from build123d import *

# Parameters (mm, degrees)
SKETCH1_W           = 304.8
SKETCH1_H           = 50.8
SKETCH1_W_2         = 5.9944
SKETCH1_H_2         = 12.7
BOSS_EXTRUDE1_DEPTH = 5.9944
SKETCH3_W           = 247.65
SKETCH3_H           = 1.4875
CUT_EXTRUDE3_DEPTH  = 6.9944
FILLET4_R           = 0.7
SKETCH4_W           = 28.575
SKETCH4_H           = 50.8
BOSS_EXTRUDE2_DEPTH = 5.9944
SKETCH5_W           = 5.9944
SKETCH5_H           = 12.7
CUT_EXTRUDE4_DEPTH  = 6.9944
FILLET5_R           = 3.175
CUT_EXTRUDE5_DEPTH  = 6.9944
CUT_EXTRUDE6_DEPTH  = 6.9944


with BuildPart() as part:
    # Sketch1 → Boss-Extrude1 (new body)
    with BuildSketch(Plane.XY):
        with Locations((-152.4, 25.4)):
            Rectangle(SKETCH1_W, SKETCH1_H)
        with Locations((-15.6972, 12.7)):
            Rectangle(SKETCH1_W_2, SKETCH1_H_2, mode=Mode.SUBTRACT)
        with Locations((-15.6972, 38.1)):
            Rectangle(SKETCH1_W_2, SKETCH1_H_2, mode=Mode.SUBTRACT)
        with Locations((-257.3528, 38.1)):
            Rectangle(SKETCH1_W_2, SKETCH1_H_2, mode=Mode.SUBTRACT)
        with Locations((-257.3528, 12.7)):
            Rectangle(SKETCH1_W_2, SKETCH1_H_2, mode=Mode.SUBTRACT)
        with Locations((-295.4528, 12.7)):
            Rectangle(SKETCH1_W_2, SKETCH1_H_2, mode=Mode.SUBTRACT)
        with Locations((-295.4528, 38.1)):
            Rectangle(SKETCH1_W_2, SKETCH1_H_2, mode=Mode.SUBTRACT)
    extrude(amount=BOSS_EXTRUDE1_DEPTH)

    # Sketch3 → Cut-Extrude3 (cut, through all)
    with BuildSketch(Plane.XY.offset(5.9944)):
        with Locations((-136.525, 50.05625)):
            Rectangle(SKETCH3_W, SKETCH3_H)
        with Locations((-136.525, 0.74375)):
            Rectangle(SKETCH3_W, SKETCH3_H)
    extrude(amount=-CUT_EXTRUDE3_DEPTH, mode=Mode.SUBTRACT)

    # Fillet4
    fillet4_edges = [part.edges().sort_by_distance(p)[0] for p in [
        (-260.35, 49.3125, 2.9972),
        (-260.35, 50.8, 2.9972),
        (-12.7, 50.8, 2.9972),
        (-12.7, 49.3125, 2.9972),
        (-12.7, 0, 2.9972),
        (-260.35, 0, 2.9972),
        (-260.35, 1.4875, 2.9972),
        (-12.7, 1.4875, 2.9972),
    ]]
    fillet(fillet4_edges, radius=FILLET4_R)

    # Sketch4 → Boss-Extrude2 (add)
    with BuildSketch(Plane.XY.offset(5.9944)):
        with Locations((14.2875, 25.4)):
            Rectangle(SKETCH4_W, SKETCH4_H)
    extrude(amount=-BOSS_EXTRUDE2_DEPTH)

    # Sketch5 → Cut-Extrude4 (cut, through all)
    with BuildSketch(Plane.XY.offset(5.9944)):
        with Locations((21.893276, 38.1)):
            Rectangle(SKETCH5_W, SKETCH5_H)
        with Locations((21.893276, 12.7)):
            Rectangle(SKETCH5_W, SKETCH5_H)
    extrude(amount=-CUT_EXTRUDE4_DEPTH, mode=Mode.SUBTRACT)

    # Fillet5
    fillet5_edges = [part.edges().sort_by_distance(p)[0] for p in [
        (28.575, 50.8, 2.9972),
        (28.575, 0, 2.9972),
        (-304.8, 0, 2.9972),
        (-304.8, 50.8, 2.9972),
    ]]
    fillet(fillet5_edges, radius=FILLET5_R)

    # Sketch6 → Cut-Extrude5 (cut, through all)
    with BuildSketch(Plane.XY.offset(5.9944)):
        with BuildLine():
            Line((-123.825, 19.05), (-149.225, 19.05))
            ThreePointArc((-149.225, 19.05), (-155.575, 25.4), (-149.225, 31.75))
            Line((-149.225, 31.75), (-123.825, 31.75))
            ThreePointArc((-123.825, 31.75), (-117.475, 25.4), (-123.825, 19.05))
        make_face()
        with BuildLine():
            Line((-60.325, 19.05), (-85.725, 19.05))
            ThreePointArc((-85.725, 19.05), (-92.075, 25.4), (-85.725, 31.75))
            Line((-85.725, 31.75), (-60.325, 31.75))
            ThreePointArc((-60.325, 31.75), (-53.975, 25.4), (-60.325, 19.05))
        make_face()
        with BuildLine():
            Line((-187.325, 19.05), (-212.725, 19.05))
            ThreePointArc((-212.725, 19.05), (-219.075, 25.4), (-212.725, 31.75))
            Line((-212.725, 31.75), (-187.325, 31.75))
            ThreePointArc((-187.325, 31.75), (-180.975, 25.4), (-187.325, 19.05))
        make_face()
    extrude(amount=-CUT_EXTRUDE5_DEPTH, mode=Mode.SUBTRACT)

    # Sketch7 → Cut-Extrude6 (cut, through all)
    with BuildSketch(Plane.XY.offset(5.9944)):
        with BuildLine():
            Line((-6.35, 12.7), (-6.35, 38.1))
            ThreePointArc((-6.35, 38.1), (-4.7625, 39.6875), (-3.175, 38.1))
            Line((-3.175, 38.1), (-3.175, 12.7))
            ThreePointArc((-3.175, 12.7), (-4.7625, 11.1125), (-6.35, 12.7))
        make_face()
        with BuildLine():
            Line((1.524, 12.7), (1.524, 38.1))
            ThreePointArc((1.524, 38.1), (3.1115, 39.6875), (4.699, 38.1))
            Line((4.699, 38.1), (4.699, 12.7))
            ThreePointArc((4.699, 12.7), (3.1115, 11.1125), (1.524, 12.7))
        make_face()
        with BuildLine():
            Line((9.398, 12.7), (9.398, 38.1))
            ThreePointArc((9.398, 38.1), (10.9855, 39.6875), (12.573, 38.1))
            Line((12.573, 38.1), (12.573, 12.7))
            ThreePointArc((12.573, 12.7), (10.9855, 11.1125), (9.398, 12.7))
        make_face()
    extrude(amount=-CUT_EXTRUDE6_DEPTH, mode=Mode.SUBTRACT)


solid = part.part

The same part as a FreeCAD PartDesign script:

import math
import FreeCAD as App
import Part
import Sketcher
from FreeCAD import Vector
Q = App.Units.Quantity


def edges_at(feature, points):
    """Names of the edges that pass closest to the given points."""
    edges = feature.Shape.Edges
    near = lambda p: min(range(len(edges)), key=lambda i: edges[i].distToShape(Part.Vertex(*p))[0])
    return sorted({f"Edge{near(p) + 1}" for p in points})

doc = App.newDocument("Part")
body = doc.addObject("PartDesign::Body", "Body")

sketch1 = doc.addObject("Sketcher::SketchObject", "Sketch")
body.addObject(sketch1)
sketch1.AttachmentSupport = (doc.XY_Plane, [""])
sketch1.MapMode = "FlatFace"
sketch1.addGeometry(Part.LineSegment(Vector(-305, 51, 0), Vector(-305, 0, 0)), False)
sketch1.addGeometry(Part.LineSegment(Vector(-305, 0, 0), Vector(0, 0, 0)), False)
sketch1.addGeometry(Part.LineSegment(Vector(0, 0, 0), Vector(0, 51, 0)), False)
sketch1.addGeometry(Part.LineSegment(Vector(0, 51, 0), Vector(-305, 51, 0)), False)
sketch1.addGeometry(Part.LineSegment(Vector(-292, 6, 0), Vector(-298, 6, 0)), False)
sketch1.addGeometry(Part.LineSegment(Vector(-298, 6, 0), Vector(-298, 19, 0)), False)
sketch1.addGeometry(Part.LineSegment(Vector(-298, 19, 0), Vector(-292, 19, 0)), False)
sketch1.addGeometry(Part.LineSegment(Vector(-292, 19, 0), Vector(-292, 6, 0)), False)
sketch1.addGeometry(Part.LineSegment(Vector(-254, 6, 0), Vector(-260, 6, 0)), False)
sketch1.addGeometry(Part.LineSegment(Vector(-260, 6, 0), Vector(-260, 19, 0)), False)
sketch1.addGeometry(Part.LineSegment(Vector(-260, 19, 0), Vector(-254, 19, 0)), False)
sketch1.addGeometry(Part.LineSegment(Vector(-254, 19, 0), Vector(-254, 6, 0)), False)
sketch1.addGeometry(Part.LineSegment(Vector(-13, 6, 0), Vector(-19, 6, 0)), False)
sketch1.addGeometry(Part.LineSegment(Vector(-19, 6, 0), Vector(-19, 19, 0)), False)
sketch1.addGeometry(Part.LineSegment(Vector(-19, 19, 0), Vector(-13, 19, 0)), False)
sketch1.addGeometry(Part.LineSegment(Vector(-13, 19, 0), Vector(-13, 6, 0)), False)
sketch1.addGeometry(Part.LineSegment(Vector(-292, 32, 0), Vector(-298, 32, 0)), False)
sketch1.addGeometry(Part.LineSegment(Vector(-298, 32, 0), Vector(-298, 44, 0)), False)
sketch1.addGeometry(Part.LineSegment(Vector(-298, 44, 0), Vector(-292, 44, 0)), False)
sketch1.addGeometry(Part.LineSegment(Vector(-292, 44, 0), Vector(-292, 32, 0)), False)
sketch1.addGeometry(Part.LineSegment(Vector(-254, 32, 0), Vector(-260, 32, 0)), False)
sketch1.addGeometry(Part.LineSegment(Vector(-260, 32, 0), Vector(-260, 44, 0)), False)
sketch1.addGeometry(Part.LineSegment(Vector(-260, 44, 0), Vector(-254, 44, 0)), False)
sketch1.addGeometry(Part.LineSegment(Vector(-254, 44, 0), Vector(-254, 32, 0)), False)
sketch1.addGeometry(Part.LineSegment(Vector(-13, 32, 0), Vector(-19, 32, 0)), False)
sketch1.addGeometry(Part.LineSegment(Vector(-19, 32, 0), Vector(-19, 44, 0)), False)
sketch1.addGeometry(Part.LineSegment(Vector(-19, 44, 0), Vector(-13, 44, 0)), False)
sketch1.addGeometry(Part.LineSegment(Vector(-13, 44, 0), Vector(-13, 32, 0)), False)
sketch1.addConstraint(Sketcher.Constraint("Coincident", 0, 2, 1, 1))
sketch1.addConstraint(Sketcher.Constraint("Coincident", 1, 2, 2, 1))
sketch1.addConstraint(Sketcher.Constraint("Coincident", 2, 2, 3, 1))
sketch1.addConstraint(Sketcher.Constraint("Coincident", 3, 2, 0, 1))
sketch1.addConstraint(Sketcher.Constraint("Coincident", 4, 2, 5, 1))
sketch1.addConstraint(Sketcher.Constraint("Coincident", 5, 2, 6, 1))
sketch1.addConstraint(Sketcher.Constraint("Coincident", 6, 2, 7, 1))
sketch1.addConstraint(Sketcher.Constraint("Coincident", 7, 2, 4, 1))
sketch1.addConstraint(Sketcher.Constraint("Coincident", 8, 2, 9, 1))
sketch1.addConstraint(Sketcher.Constraint("Coincident", 9, 2, 10, 1))
sketch1.addConstraint(Sketcher.Constraint("Coincident", 10, 2, 11, 1))
sketch1.addConstraint(Sketcher.Constraint("Coincident", 11, 2, 8, 1))
sketch1.addConstraint(Sketcher.Constraint("Coincident", 12, 2, 13, 1))
sketch1.addConstraint(Sketcher.Constraint("Coincident", 13, 2, 14, 1))
sketch1.addConstraint(Sketcher.Constraint("Coincident", 14, 2, 15, 1))
sketch1.addConstraint(Sketcher.Constraint("Coincident", 15, 2, 12, 1))
sketch1.addConstraint(Sketcher.Constraint("Coincident", 16, 2, 17, 1))
sketch1.addConstraint(Sketcher.Constraint("Coincident", 17, 2, 18, 1))
sketch1.addConstraint(Sketcher.Constraint("Coincident", 18, 2, 19, 1))
sketch1.addConstraint(Sketcher.Constraint("Coincident", 19, 2, 16, 1))
sketch1.addConstraint(Sketcher.Constraint("Coincident", 20, 2, 21, 1))
sketch1.addConstraint(Sketcher.Constraint("Coincident", 21, 2, 22, 1))
sketch1.addConstraint(Sketcher.Constraint("Coincident", 22, 2, 23, 1))
sketch1.addConstraint(Sketcher.Constraint("Coincident", 23, 2, 20, 1))
sketch1.addConstraint(Sketcher.Constraint("Coincident", 24, 2, 25, 1))
sketch1.addConstraint(Sketcher.Constraint("Coincident", 25, 2, 26, 1))
sketch1.addConstraint(Sketcher.Constraint("Coincident", 26, 2, 27, 1))
sketch1.addConstraint(Sketcher.Constraint("Coincident", 27, 2, 24, 1))
sketch1.addConstraint(Sketcher.Constraint("Vertical", 0))
sketch1.addConstraint(Sketcher.Constraint("Horizontal", 1))
sketch1.addConstraint(Sketcher.Constraint("Vertical", 2))
sketch1.addConstraint(Sketcher.Constraint("Horizontal", 3))
sketch1.addConstraint(Sketcher.Constraint("Horizontal", 4))
sketch1.addConstraint(Sketcher.Constraint("Vertical", 5))
sketch1.addConstraint(Sketcher.Constraint("Horizontal", 6))
sketch1.addConstraint(Sketcher.Constraint("Vertical", 7))
sketch1.addConstraint(Sketcher.Constraint("Horizontal", 8))
sketch1.addConstraint(Sketcher.Constraint("Vertical", 9))
sketch1.addConstraint(Sketcher.Constraint("Horizontal", 10))
sketch1.addConstraint(Sketcher.Constraint("Vertical", 11))
sketch1.addConstraint(Sketcher.Constraint("Horizontal", 12))
sketch1.addConstraint(Sketcher.Constraint("Vertical", 13))
sketch1.addConstraint(Sketcher.Constraint("Horizontal", 14))
sketch1.addConstraint(Sketcher.Constraint("Vertical", 15))
sketch1.addConstraint(Sketcher.Constraint("Horizontal", 16))
sketch1.addConstraint(Sketcher.Constraint("Vertical", 17))
sketch1.addConstraint(Sketcher.Constraint("Horizontal", 18))
sketch1.addConstraint(Sketcher.Constraint("Vertical", 19))
sketch1.addConstraint(Sketcher.Constraint("Horizontal", 20))
sketch1.addConstraint(Sketcher.Constraint("Vertical", 21))
sketch1.addConstraint(Sketcher.Constraint("Horizontal", 22))
sketch1.addConstraint(Sketcher.Constraint("Vertical", 23))
sketch1.addConstraint(Sketcher.Constraint("Horizontal", 24))
sketch1.addConstraint(Sketcher.Constraint("Vertical", 25))
sketch1.addConstraint(Sketcher.Constraint("Horizontal", 26))
sketch1.addConstraint(Sketcher.Constraint("Vertical", 27))
sketch1.addConstraint(Sketcher.Constraint("Coincident", 1, 2, -1, 1))
sketch1.addConstraint(Sketcher.Constraint("Horizontal", 7, 2, 8, 2))
sketch1.addConstraint(Sketcher.Constraint("Horizontal", 6, 2, 9, 2))
sketch1.addConstraint(Sketcher.Constraint("Horizontal", 11, 2, 12, 2))
sketch1.addConstraint(Sketcher.Constraint("Horizontal", 10, 2, 13, 2))
sketch1.addConstraint(Sketcher.Constraint("Horizontal", 19, 2, 20, 2))
sketch1.addConstraint(Sketcher.Constraint("Horizontal", 18, 2, 21, 2))
sketch1.addConstraint(Sketcher.Constraint("Horizontal", 23, 2, 24, 2))
sketch1.addConstraint(Sketcher.Constraint("Horizontal", 22, 2, 25, 2))
sketch1.addConstraint(Sketcher.Constraint("Vertical", 5, 2, 16, 2))
sketch1.addConstraint(Sketcher.Constraint("Vertical", 7, 2, 18, 2))
sketch1.addConstraint(Sketcher.Constraint("Vertical", 9, 2, 20, 2))
sketch1.addConstraint(Sketcher.Constraint("Vertical", 11, 2, 22, 2))
sketch1.addConstraint(Sketcher.Constraint("Vertical", 13, 2, 24, 2))
sketch1.addConstraint(Sketcher.Constraint("Vertical", 15, 2, 26, 2))
sketch1.addConstraint(Sketcher.Constraint("Equal", 6, 8))
sketch1.addConstraint(Sketcher.Constraint("Equal", 10, 12))
sketch1.addConstraint(Sketcher.Constraint("Equal", 15, 17))
sketch1.addConstraint(Sketcher.Constraint("DistanceX", 1, 1, 1, 2, Q("12 in")))
sketch1.addConstraint(Sketcher.Constraint("DistanceY", 0, 2, 0, 1, Q("2 in")))
sketch1.addConstraint(Sketcher.Constraint("DistanceY", 5, 1, 5, 2, Q("0.5 in")))
sketch1.addConstraint(Sketcher.Constraint("DistanceY", 4, 2, 16, 2, Q("1 in")))
sketch1.addConstraint(Sketcher.Constraint("DistanceX", 14, 2, -1, 1, Q("0.5 in")))
sketch1.addConstraint(Sketcher.Constraint("DistanceX", 4, 2, 8, 2, Q("1.5 in")))
sketch1.addConstraint(Sketcher.Constraint("DistanceX", 4, 2, 4, 1, Q("0.236 in")))
sketch1.addConstraint(Sketcher.Constraint("DistanceX", 4, 2, -1, 1, Q("11.75 in")))
sketch1.addConstraint(Sketcher.Constraint("DistanceY", -1, 1, 4, 2, Q("0.25 in")))
pad1 = doc.addObject("PartDesign::Pad", "Pad")
body.addObject(pad1)
pad1.Profile = sketch1
pad1.Length = Q("0.236 in")

sketch2 = doc.addObject("Sketcher::SketchObject", "Sketch001")
body.addObject(sketch2)
sketch2.AttachmentSupport = (doc.XY_Plane, [""])
sketch2.MapMode = "FlatFace"
sketch2.AttachmentOffset = App.Placement(Vector(0, 0, 0.236 * 25.4), App.Rotation())
sketch2.addGeometry(Part.LineSegment(Vector(-260.4, 50.8, 0), Vector(-260.4, 49.3, 0)), False)
sketch2.addGeometry(Part.LineSegment(Vector(-260.4, 49.3, 0), Vector(-12.7, 49.3, 0)), False)
sketch2.addGeometry(Part.LineSegment(Vector(-12.7, 49.3, 0), Vector(-12.7, 50.8, 0)), False)
sketch2.addGeometry(Part.LineSegment(Vector(-12.7, 50.8, 0), Vector(-260.4, 50.8, 0)), False)
sketch2.addGeometry(Part.LineSegment(Vector(-260.4, 1.5, 0), Vector(-260.4, 0, 0)), False)
sketch2.addGeometry(Part.LineSegment(Vector(-260.4, 0, 0), Vector(-12.7, 0, 0)), False)
sketch2.addGeometry(Part.LineSegment(Vector(-12.7, 0, 0), Vector(-12.7, 1.5, 0)), False)
sketch2.addGeometry(Part.LineSegment(Vector(-12.7, 1.5, 0), Vector(-260.4, 1.5, 0)), False)
sketch2.addConstraint(Sketcher.Constraint("Coincident", 0, 2, 1, 1))
sketch2.addConstraint(Sketcher.Constraint("Coincident", 1, 2, 2, 1))
sketch2.addConstraint(Sketcher.Constraint("Coincident", 2, 2, 3, 1))
sketch2.addConstraint(Sketcher.Constraint("Coincident", 3, 2, 0, 1))
sketch2.addConstraint(Sketcher.Constraint("Coincident", 4, 2, 5, 1))
sketch2.addConstraint(Sketcher.Constraint("Coincident", 5, 2, 6, 1))
sketch2.addConstraint(Sketcher.Constraint("Coincident", 6, 2, 7, 1))
sketch2.addConstraint(Sketcher.Constraint("Coincident", 7, 2, 4, 1))
sketch2.addConstraint(Sketcher.Constraint("Vertical", 0))
sketch2.addConstraint(Sketcher.Constraint("Horizontal", 1))
sketch2.addConstraint(Sketcher.Constraint("Vertical", 2))
sketch2.addConstraint(Sketcher.Constraint("Horizontal", 3))
sketch2.addConstraint(Sketcher.Constraint("Vertical", 4))
sketch2.addConstraint(Sketcher.Constraint("Horizontal", 5))
sketch2.addConstraint(Sketcher.Constraint("Vertical", 6))
sketch2.addConstraint(Sketcher.Constraint("Horizontal", 7))
sketch2.addConstraint(Sketcher.Constraint("PointOnObject", 4, 2, -1))
sketch2.addConstraint(Sketcher.Constraint("Vertical", 3, 2, 4, 2))
sketch2.addConstraint(Sketcher.Constraint("Vertical", 2, 2, 5, 2))
sketch2.addConstraint(Sketcher.Constraint("Equal", 2, 4))
sketch2.addConstraint(Sketcher.Constraint("DistanceY", -1, 1, 2, 2, Q("2 in")))
sketch2.addConstraint(Sketcher.Constraint("DistanceX", 1, 1, 1, 2, Q("9.75 in")))
sketch2.addConstraint(Sketcher.Constraint("DistanceX", 1, 2, -1, 1, Q("0.5 in")))
sketch2.addConstraint(Sketcher.Constraint("DistanceY", 0, 2, 0, 1, Q("1.4875 mm")))
pocket1 = doc.addObject("PartDesign::Pocket", "Pocket")
body.addObject(pocket1)
pocket1.Profile = sketch2
pocket1.Type = "ThroughAll"
doc.recompute()

fillet = doc.addObject("PartDesign::Fillet", "Fillet")
body.addObject(fillet)
fillet.Base = (pocket1, edges_at(pocket1, [
    (-260.35, 49.312, 2.997),
    (-260.35, 50.8, 2.997),
    (-12.7, 50.8, 2.997),
    (-12.7, 49.312, 2.997),
    (-12.7, 0, 2.997),
    (-260.35, 0, 2.997),
    (-260.35, 1.488, 2.997),
    (-12.7, 1.488, 2.997),
]))
fillet.Radius = 0.7

sketch3 = doc.addObject("Sketcher::SketchObject", "Sketch002")
body.addObject(sketch3)
sketch3.AttachmentSupport = (doc.XY_Plane, [""])
sketch3.MapMode = "FlatFace"
sketch3.AttachmentOffset = App.Placement(Vector(0, 0, 0.236 * 25.4), App.Rotation())
sketch3.addGeometry(Part.LineSegment(Vector(0, 51, 0), Vector(0, 0, 0)), False)
sketch3.addGeometry(Part.LineSegment(Vector(0, 0, 0), Vector(29, 0, 0)), False)
sketch3.addGeometry(Part.LineSegment(Vector(29, 0, 0), Vector(29, 51, 0)), False)
sketch3.addGeometry(Part.LineSegment(Vector(29, 51, 0), Vector(0, 51, 0)), False)
sketch3.addConstraint(Sketcher.Constraint("Coincident", 0, 2, 1, 1))
sketch3.addConstraint(Sketcher.Constraint("Coincident", 1, 2, 2, 1))
sketch3.addConstraint(Sketcher.Constraint("Coincident", 2, 2, 3, 1))
sketch3.addConstraint(Sketcher.Constraint("Coincident", 3, 2, 0, 1))
sketch3.addConstraint(Sketcher.Constraint("Vertical", 0))
sketch3.addConstraint(Sketcher.Constraint("Horizontal", 1))
sketch3.addConstraint(Sketcher.Constraint("Vertical", 2))
sketch3.addConstraint(Sketcher.Constraint("Horizontal", 3))
sketch3.addConstraint(Sketcher.Constraint("Coincident", 0, 2, -1, 1))
sketch3.addConstraint(Sketcher.Constraint("DistanceY", 0, 2, 0, 1, Q("2 in")))
sketch3.addConstraint(Sketcher.Constraint("DistanceX", 1, 1, 1, 2, Q("1.125 in")))
pad2 = doc.addObject("PartDesign::Pad", "Pad001")
body.addObject(pad2)
pad2.Profile = sketch3
pad2.Length = Q("0.236 in")
pad2.Reversed = True

sketch4 = doc.addObject("Sketcher::SketchObject", "Sketch003")
body.addObject(sketch4)
sketch4.AttachmentSupport = (doc.XY_Plane, [""])
sketch4.MapMode = "FlatFace"
sketch4.AttachmentOffset = App.Placement(Vector(0, 0, 0.236 * 25.4), App.Rotation())
sketch4.addGeometry(Part.LineSegment(Vector(19, 44, 0), Vector(19, 32, 0)), False)
sketch4.addGeometry(Part.LineSegment(Vector(19, 32, 0), Vector(25, 32, 0)), False)
sketch4.addGeometry(Part.LineSegment(Vector(25, 32, 0), Vector(25, 44, 0)), False)
sketch4.addGeometry(Part.LineSegment(Vector(25, 44, 0), Vector(19, 44, 0)), False)
sketch4.addGeometry(Part.LineSegment(Vector(19, 19, 0), Vector(19, 6, 0)), False)
sketch4.addGeometry(Part.LineSegment(Vector(19, 6, 0), Vector(25, 6, 0)), False)
sketch4.addGeometry(Part.LineSegment(Vector(25, 6, 0), Vector(25, 19, 0)), False)
sketch4.addGeometry(Part.LineSegment(Vector(25, 19, 0), Vector(19, 19, 0)), False)
sketch4.addConstraint(Sketcher.Constraint("Coincident", 0, 2, 1, 1))
sketch4.addConstraint(Sketcher.Constraint("Coincident", 1, 2, 2, 1))
sketch4.addConstraint(Sketcher.Constraint("Coincident", 2, 2, 3, 1))
sketch4.addConstraint(Sketcher.Constraint("Coincident", 3, 2, 0, 1))
sketch4.addConstraint(Sketcher.Constraint("Coincident", 4, 2, 5, 1))
sketch4.addConstraint(Sketcher.Constraint("Coincident", 5, 2, 6, 1))
sketch4.addConstraint(Sketcher.Constraint("Coincident", 6, 2, 7, 1))
sketch4.addConstraint(Sketcher.Constraint("Coincident", 7, 2, 4, 1))
sketch4.addConstraint(Sketcher.Constraint("Vertical", 0))
sketch4.addConstraint(Sketcher.Constraint("Horizontal", 1))
sketch4.addConstraint(Sketcher.Constraint("Vertical", 2))
sketch4.addConstraint(Sketcher.Constraint("Horizontal", 3))
sketch4.addConstraint(Sketcher.Constraint("Vertical", 4))
sketch4.addConstraint(Sketcher.Constraint("Horizontal", 5))
sketch4.addConstraint(Sketcher.Constraint("Vertical", 6))
sketch4.addConstraint(Sketcher.Constraint("Horizontal", 7))
sketch4.addConstraint(Sketcher.Constraint("Vertical", 3, 2, 4, 2))
sketch4.addConstraint(Sketcher.Constraint("Vertical", 2, 2, 5, 2))
sketch4.addConstraint(Sketcher.Constraint("Equal", 2, 4))
sketch4.addConstraint(Sketcher.Constraint("DistanceY", 0, 2, 0, 1, Q("0.5 in")))
sketch4.addConstraint(Sketcher.Constraint("DistanceY", 4, 2, 0, 2, Q("1 in")))
sketch4.addConstraint(Sketcher.Constraint("DistanceX", 1, 1, 1, 2, Q("0.236 in")))
sketch4.addConstraint(Sketcher.Constraint("DistanceY", -1, 1, 0, 2, Q("1.25 in")))
sketch4.addConstraint(Sketcher.Constraint("DistanceX", -1, 1, 0, 2, Q("18.896076 mm")))
pocket2 = doc.addObject("PartDesign::Pocket", "Pocket001")
body.addObject(pocket2)
pocket2.Profile = sketch4
pocket2.Type = "ThroughAll"
doc.recompute()

fillet2 = doc.addObject("PartDesign::Fillet", "Fillet001")
body.addObject(fillet2)
fillet2.Base = (pocket2, edges_at(pocket2, [
    (28.575, 50.8, 2.997),
    (28.575, 0, 2.997),
    (-304.8, 0, 2.997),
    (-304.8, 50.8, 2.997),
]))
fillet2.Radius = Q("0.125 in")

sketch5 = doc.addObject("Sketcher::SketchObject", "Sketch004")
body.addObject(sketch5)
sketch5.AttachmentSupport = (doc.XY_Plane, [""])
sketch5.MapMode = "FlatFace"
sketch5.AttachmentOffset = App.Placement(Vector(0, 0, 0.236 * 25.4), App.Rotation())
sketch5.addGeometry(Part.LineSegment(Vector(-149, 19, 0), Vector(-124, 19, 0)), False)
sketch5.addGeometry(Part.ArcOfCircle(Part.Circle(Vector(-124, 25, 0), Vector(0, 0, 1), 6), math.radians(-90), math.radians(90)), False)
sketch5.addGeometry(Part.LineSegment(Vector(-124, 32, 0), Vector(-149, 32, 0)), False)
sketch5.addGeometry(Part.ArcOfCircle(Part.Circle(Vector(-149, 25, 0), Vector(0, 0, 1), 6), math.radians(90), math.radians(270)), False)
sketch5.addGeometry(Part.LineSegment(Vector(-86, 19, 0), Vector(-60, 19, 0)), False)
sketch5.addGeometry(Part.ArcOfCircle(Part.Circle(Vector(-60, 25, 0), Vector(0, 0, 1), 6), math.radians(-90), math.radians(90)), False)
sketch5.addGeometry(Part.LineSegment(Vector(-60, 32, 0), Vector(-86, 32, 0)), False)
sketch5.addGeometry(Part.ArcOfCircle(Part.Circle(Vector(-86, 25, 0), Vector(0, 0, 1), 6), math.radians(90), math.radians(270)), False)
sketch5.addGeometry(Part.LineSegment(Vector(-213, 19, 0), Vector(-187, 19, 0)), False)
sketch5.addGeometry(Part.ArcOfCircle(Part.Circle(Vector(-187, 25, 0), Vector(0, 0, 1), 6), math.radians(-90), math.radians(90)), False)
sketch5.addGeometry(Part.LineSegment(Vector(-187, 32, 0), Vector(-213, 32, 0)), False)
sketch5.addGeometry(Part.ArcOfCircle(Part.Circle(Vector(-213, 25, 0), Vector(0, 0, 1), 6), math.radians(90), math.radians(270)), False)
sketch5.addConstraint(Sketcher.Constraint("Tangent", 0, 2, 1, 1))
sketch5.addConstraint(Sketcher.Constraint("Tangent", 1, 2, 2, 1))
sketch5.addConstraint(Sketcher.Constraint("Tangent", 2, 2, 3, 1))
sketch5.addConstraint(Sketcher.Constraint("Tangent", 3, 2, 0, 1))
sketch5.addConstraint(Sketcher.Constraint("Tangent", 4, 2, 5, 1))
sketch5.addConstraint(Sketcher.Constraint("Tangent", 5, 2, 6, 1))
sketch5.addConstraint(Sketcher.Constraint("Tangent", 6, 2, 7, 1))
sketch5.addConstraint(Sketcher.Constraint("Tangent", 7, 2, 4, 1))
sketch5.addConstraint(Sketcher.Constraint("Tangent", 8, 2, 9, 1))
sketch5.addConstraint(Sketcher.Constraint("Tangent", 9, 2, 10, 1))
sketch5.addConstraint(Sketcher.Constraint("Tangent", 10, 2, 11, 1))
sketch5.addConstraint(Sketcher.Constraint("Tangent", 11, 2, 8, 1))
sketch5.addConstraint(Sketcher.Constraint("Horizontal", 0))
sketch5.addConstraint(Sketcher.Constraint("Horizontal", 2))
sketch5.addConstraint(Sketcher.Constraint("Horizontal", 4))
sketch5.addConstraint(Sketcher.Constraint("Horizontal", 6))
sketch5.addConstraint(Sketcher.Constraint("Horizontal", 8))
sketch5.addConstraint(Sketcher.Constraint("Horizontal", 10))
sketch5.addConstraint(Sketcher.Constraint("Equal", 3, 5))
sketch5.addConstraint(Sketcher.Constraint("Equal", 7, 9))
sketch5.addConstraint(Sketcher.Constraint("Horizontal", 3, 3, 5, 3))
sketch5.addConstraint(Sketcher.Constraint("Horizontal", 7, 3, 9, 3))
sketch5.addConstraint(Sketcher.Constraint("Equal", 2, 4))
sketch5.addConstraint(Sketcher.Constraint("Equal", 6, 8))
sketch5.addConstraint(Sketcher.Constraint("DistanceX", 0, 1, 0, 2, Q("1 in")))
sketch5.addConstraint(Sketcher.Constraint("Radius", 1, Q("0.25 in")))
sketch5.addConstraint(Sketcher.Constraint("DistanceY", -1, 1, 1, 3, Q("1 in")))
sketch5.addConstraint(Sketcher.Constraint("DistanceX", 9, 3, 7, 3, Q("4 in")))
sketch5.addConstraint(Sketcher.Constraint("DistanceX", 1, 3, 5, 3, Q("2.5 in")))
sketch5.addConstraint(Sketcher.Constraint("DistanceX", 1, 3, -1, 1, Q("4.875 in")))
pocket3 = doc.addObject("PartDesign::Pocket", "Pocket002")
body.addObject(pocket3)
pocket3.Profile = sketch5
pocket3.Type = "ThroughAll"

sketch6 = doc.addObject("Sketcher::SketchObject", "Sketch005")
body.addObject(sketch6)
sketch6.AttachmentSupport = (doc.XY_Plane, [""])
sketch6.MapMode = "FlatFace"
sketch6.AttachmentOffset = App.Placement(Vector(0, 0, 0.236 * 25.4), App.Rotation())
sketch6.addGeometry(Part.LineSegment(Vector(-6.3, 38.1, 0), Vector(-6.3, 12.7, 0)), False)
sketch6.addGeometry(Part.ArcOfCircle(Part.Circle(Vector(-4.8, 12.7, 0), Vector(0, 0, 1), 1.6), math.radians(180), math.radians(360)), False)
sketch6.addGeometry(Part.LineSegment(Vector(-3.2, 12.7, 0), Vector(-3.2, 38.1, 0)), False)
sketch6.addGeometry(Part.ArcOfCircle(Part.Circle(Vector(-4.8, 38.1, 0), Vector(0, 0, 1), 1.6), math.radians(0), math.radians(180)), False)
sketch6.addGeometry(Part.LineSegment(Vector(1.5, 38.1, 0), Vector(1.5, 12.7, 0)), False)
sketch6.addGeometry(Part.ArcOfCircle(Part.Circle(Vector(3.1, 12.7, 0), Vector(0, 0, 1), 1.6), math.radians(180), math.radians(360)), False)
sketch6.addGeometry(Part.LineSegment(Vector(4.7, 12.7, 0), Vector(4.7, 38.1, 0)), False)
sketch6.addGeometry(Part.ArcOfCircle(Part.Circle(Vector(3.1, 38.1, 0), Vector(0, 0, 1), 1.6), math.radians(0), math.radians(180)), False)
sketch6.addGeometry(Part.LineSegment(Vector(9.4, 38.1, 0), Vector(9.4, 12.7, 0)), False)
sketch6.addGeometry(Part.ArcOfCircle(Part.Circle(Vector(11, 12.7, 0), Vector(0, 0, 1), 1.6), math.radians(180), math.radians(360)), False)
sketch6.addGeometry(Part.LineSegment(Vector(12.6, 12.7, 0), Vector(12.6, 38.1, 0)), False)
sketch6.addGeometry(Part.ArcOfCircle(Part.Circle(Vector(11, 38.1, 0), Vector(0, 0, 1), 1.6), math.radians(0), math.radians(180)), False)
sketch6.addConstraint(Sketcher.Constraint("Tangent", 0, 2, 1, 1))
sketch6.addConstraint(Sketcher.Constraint("Tangent", 1, 2, 2, 1))
sketch6.addConstraint(Sketcher.Constraint("Tangent", 2, 2, 3, 1))
sketch6.addConstraint(Sketcher.Constraint("Tangent", 3, 2, 0, 1))
sketch6.addConstraint(Sketcher.Constraint("Tangent", 4, 2, 5, 1))
sketch6.addConstraint(Sketcher.Constraint("Tangent", 5, 2, 6, 1))
sketch6.addConstraint(Sketcher.Constraint("Tangent", 6, 2, 7, 1))
sketch6.addConstraint(Sketcher.Constraint("Tangent", 7, 2, 4, 1))
sketch6.addConstraint(Sketcher.Constraint("Tangent", 8, 2, 9, 1))
sketch6.addConstraint(Sketcher.Constraint("Tangent", 9, 2, 10, 1))
sketch6.addConstraint(Sketcher.Constraint("Tangent", 10, 2, 11, 1))
sketch6.addConstraint(Sketcher.Constraint("Tangent", 11, 2, 8, 1))
sketch6.addConstraint(Sketcher.Constraint("Vertical", 0))
sketch6.addConstraint(Sketcher.Constraint("Vertical", 2))
sketch6.addConstraint(Sketcher.Constraint("Vertical", 4))
sketch6.addConstraint(Sketcher.Constraint("Vertical", 6))
sketch6.addConstraint(Sketcher.Constraint("Vertical", 8))
sketch6.addConstraint(Sketcher.Constraint("Vertical", 10))
sketch6.addConstraint(Sketcher.Constraint("Equal", 3, 5))
sketch6.addConstraint(Sketcher.Constraint("Equal", 7, 9))
sketch6.addConstraint(Sketcher.Constraint("Horizontal", 1, 3, 5, 3))
sketch6.addConstraint(Sketcher.Constraint("Horizontal", 3, 3, 7, 3))
sketch6.addConstraint(Sketcher.Constraint("Horizontal", 5, 3, 9, 3))
sketch6.addConstraint(Sketcher.Constraint("Horizontal", 7, 3, 11, 3))
sketch6.addConstraint(Sketcher.Constraint("DistanceY", 0, 2, 0, 1, Q("1 in")))
sketch6.addConstraint(Sketcher.Constraint("Radius", 1, Q("0.0625 in")))
sketch6.addConstraint(Sketcher.Constraint("DistanceY", -1, 1, 1, 3, Q("0.5 in")))
sketch6.addConstraint(Sketcher.Constraint("DistanceX", 0, 2, -1, 1, Q("0.25 in")))
sketch6.addConstraint(Sketcher.Constraint("DistanceX", -1, 1, 4, 2, Q("0.06 in")))
sketch6.addConstraint(Sketcher.Constraint("DistanceX", -1, 1, 8, 2, Q("0.37 in")))
pocket4 = doc.addObject("PartDesign::Pocket", "Pocket003")
body.addObject(pocket4)
pocket4.Profile = sketch6
pocket4.Type = "ThroughAll"

doc.recompute()
